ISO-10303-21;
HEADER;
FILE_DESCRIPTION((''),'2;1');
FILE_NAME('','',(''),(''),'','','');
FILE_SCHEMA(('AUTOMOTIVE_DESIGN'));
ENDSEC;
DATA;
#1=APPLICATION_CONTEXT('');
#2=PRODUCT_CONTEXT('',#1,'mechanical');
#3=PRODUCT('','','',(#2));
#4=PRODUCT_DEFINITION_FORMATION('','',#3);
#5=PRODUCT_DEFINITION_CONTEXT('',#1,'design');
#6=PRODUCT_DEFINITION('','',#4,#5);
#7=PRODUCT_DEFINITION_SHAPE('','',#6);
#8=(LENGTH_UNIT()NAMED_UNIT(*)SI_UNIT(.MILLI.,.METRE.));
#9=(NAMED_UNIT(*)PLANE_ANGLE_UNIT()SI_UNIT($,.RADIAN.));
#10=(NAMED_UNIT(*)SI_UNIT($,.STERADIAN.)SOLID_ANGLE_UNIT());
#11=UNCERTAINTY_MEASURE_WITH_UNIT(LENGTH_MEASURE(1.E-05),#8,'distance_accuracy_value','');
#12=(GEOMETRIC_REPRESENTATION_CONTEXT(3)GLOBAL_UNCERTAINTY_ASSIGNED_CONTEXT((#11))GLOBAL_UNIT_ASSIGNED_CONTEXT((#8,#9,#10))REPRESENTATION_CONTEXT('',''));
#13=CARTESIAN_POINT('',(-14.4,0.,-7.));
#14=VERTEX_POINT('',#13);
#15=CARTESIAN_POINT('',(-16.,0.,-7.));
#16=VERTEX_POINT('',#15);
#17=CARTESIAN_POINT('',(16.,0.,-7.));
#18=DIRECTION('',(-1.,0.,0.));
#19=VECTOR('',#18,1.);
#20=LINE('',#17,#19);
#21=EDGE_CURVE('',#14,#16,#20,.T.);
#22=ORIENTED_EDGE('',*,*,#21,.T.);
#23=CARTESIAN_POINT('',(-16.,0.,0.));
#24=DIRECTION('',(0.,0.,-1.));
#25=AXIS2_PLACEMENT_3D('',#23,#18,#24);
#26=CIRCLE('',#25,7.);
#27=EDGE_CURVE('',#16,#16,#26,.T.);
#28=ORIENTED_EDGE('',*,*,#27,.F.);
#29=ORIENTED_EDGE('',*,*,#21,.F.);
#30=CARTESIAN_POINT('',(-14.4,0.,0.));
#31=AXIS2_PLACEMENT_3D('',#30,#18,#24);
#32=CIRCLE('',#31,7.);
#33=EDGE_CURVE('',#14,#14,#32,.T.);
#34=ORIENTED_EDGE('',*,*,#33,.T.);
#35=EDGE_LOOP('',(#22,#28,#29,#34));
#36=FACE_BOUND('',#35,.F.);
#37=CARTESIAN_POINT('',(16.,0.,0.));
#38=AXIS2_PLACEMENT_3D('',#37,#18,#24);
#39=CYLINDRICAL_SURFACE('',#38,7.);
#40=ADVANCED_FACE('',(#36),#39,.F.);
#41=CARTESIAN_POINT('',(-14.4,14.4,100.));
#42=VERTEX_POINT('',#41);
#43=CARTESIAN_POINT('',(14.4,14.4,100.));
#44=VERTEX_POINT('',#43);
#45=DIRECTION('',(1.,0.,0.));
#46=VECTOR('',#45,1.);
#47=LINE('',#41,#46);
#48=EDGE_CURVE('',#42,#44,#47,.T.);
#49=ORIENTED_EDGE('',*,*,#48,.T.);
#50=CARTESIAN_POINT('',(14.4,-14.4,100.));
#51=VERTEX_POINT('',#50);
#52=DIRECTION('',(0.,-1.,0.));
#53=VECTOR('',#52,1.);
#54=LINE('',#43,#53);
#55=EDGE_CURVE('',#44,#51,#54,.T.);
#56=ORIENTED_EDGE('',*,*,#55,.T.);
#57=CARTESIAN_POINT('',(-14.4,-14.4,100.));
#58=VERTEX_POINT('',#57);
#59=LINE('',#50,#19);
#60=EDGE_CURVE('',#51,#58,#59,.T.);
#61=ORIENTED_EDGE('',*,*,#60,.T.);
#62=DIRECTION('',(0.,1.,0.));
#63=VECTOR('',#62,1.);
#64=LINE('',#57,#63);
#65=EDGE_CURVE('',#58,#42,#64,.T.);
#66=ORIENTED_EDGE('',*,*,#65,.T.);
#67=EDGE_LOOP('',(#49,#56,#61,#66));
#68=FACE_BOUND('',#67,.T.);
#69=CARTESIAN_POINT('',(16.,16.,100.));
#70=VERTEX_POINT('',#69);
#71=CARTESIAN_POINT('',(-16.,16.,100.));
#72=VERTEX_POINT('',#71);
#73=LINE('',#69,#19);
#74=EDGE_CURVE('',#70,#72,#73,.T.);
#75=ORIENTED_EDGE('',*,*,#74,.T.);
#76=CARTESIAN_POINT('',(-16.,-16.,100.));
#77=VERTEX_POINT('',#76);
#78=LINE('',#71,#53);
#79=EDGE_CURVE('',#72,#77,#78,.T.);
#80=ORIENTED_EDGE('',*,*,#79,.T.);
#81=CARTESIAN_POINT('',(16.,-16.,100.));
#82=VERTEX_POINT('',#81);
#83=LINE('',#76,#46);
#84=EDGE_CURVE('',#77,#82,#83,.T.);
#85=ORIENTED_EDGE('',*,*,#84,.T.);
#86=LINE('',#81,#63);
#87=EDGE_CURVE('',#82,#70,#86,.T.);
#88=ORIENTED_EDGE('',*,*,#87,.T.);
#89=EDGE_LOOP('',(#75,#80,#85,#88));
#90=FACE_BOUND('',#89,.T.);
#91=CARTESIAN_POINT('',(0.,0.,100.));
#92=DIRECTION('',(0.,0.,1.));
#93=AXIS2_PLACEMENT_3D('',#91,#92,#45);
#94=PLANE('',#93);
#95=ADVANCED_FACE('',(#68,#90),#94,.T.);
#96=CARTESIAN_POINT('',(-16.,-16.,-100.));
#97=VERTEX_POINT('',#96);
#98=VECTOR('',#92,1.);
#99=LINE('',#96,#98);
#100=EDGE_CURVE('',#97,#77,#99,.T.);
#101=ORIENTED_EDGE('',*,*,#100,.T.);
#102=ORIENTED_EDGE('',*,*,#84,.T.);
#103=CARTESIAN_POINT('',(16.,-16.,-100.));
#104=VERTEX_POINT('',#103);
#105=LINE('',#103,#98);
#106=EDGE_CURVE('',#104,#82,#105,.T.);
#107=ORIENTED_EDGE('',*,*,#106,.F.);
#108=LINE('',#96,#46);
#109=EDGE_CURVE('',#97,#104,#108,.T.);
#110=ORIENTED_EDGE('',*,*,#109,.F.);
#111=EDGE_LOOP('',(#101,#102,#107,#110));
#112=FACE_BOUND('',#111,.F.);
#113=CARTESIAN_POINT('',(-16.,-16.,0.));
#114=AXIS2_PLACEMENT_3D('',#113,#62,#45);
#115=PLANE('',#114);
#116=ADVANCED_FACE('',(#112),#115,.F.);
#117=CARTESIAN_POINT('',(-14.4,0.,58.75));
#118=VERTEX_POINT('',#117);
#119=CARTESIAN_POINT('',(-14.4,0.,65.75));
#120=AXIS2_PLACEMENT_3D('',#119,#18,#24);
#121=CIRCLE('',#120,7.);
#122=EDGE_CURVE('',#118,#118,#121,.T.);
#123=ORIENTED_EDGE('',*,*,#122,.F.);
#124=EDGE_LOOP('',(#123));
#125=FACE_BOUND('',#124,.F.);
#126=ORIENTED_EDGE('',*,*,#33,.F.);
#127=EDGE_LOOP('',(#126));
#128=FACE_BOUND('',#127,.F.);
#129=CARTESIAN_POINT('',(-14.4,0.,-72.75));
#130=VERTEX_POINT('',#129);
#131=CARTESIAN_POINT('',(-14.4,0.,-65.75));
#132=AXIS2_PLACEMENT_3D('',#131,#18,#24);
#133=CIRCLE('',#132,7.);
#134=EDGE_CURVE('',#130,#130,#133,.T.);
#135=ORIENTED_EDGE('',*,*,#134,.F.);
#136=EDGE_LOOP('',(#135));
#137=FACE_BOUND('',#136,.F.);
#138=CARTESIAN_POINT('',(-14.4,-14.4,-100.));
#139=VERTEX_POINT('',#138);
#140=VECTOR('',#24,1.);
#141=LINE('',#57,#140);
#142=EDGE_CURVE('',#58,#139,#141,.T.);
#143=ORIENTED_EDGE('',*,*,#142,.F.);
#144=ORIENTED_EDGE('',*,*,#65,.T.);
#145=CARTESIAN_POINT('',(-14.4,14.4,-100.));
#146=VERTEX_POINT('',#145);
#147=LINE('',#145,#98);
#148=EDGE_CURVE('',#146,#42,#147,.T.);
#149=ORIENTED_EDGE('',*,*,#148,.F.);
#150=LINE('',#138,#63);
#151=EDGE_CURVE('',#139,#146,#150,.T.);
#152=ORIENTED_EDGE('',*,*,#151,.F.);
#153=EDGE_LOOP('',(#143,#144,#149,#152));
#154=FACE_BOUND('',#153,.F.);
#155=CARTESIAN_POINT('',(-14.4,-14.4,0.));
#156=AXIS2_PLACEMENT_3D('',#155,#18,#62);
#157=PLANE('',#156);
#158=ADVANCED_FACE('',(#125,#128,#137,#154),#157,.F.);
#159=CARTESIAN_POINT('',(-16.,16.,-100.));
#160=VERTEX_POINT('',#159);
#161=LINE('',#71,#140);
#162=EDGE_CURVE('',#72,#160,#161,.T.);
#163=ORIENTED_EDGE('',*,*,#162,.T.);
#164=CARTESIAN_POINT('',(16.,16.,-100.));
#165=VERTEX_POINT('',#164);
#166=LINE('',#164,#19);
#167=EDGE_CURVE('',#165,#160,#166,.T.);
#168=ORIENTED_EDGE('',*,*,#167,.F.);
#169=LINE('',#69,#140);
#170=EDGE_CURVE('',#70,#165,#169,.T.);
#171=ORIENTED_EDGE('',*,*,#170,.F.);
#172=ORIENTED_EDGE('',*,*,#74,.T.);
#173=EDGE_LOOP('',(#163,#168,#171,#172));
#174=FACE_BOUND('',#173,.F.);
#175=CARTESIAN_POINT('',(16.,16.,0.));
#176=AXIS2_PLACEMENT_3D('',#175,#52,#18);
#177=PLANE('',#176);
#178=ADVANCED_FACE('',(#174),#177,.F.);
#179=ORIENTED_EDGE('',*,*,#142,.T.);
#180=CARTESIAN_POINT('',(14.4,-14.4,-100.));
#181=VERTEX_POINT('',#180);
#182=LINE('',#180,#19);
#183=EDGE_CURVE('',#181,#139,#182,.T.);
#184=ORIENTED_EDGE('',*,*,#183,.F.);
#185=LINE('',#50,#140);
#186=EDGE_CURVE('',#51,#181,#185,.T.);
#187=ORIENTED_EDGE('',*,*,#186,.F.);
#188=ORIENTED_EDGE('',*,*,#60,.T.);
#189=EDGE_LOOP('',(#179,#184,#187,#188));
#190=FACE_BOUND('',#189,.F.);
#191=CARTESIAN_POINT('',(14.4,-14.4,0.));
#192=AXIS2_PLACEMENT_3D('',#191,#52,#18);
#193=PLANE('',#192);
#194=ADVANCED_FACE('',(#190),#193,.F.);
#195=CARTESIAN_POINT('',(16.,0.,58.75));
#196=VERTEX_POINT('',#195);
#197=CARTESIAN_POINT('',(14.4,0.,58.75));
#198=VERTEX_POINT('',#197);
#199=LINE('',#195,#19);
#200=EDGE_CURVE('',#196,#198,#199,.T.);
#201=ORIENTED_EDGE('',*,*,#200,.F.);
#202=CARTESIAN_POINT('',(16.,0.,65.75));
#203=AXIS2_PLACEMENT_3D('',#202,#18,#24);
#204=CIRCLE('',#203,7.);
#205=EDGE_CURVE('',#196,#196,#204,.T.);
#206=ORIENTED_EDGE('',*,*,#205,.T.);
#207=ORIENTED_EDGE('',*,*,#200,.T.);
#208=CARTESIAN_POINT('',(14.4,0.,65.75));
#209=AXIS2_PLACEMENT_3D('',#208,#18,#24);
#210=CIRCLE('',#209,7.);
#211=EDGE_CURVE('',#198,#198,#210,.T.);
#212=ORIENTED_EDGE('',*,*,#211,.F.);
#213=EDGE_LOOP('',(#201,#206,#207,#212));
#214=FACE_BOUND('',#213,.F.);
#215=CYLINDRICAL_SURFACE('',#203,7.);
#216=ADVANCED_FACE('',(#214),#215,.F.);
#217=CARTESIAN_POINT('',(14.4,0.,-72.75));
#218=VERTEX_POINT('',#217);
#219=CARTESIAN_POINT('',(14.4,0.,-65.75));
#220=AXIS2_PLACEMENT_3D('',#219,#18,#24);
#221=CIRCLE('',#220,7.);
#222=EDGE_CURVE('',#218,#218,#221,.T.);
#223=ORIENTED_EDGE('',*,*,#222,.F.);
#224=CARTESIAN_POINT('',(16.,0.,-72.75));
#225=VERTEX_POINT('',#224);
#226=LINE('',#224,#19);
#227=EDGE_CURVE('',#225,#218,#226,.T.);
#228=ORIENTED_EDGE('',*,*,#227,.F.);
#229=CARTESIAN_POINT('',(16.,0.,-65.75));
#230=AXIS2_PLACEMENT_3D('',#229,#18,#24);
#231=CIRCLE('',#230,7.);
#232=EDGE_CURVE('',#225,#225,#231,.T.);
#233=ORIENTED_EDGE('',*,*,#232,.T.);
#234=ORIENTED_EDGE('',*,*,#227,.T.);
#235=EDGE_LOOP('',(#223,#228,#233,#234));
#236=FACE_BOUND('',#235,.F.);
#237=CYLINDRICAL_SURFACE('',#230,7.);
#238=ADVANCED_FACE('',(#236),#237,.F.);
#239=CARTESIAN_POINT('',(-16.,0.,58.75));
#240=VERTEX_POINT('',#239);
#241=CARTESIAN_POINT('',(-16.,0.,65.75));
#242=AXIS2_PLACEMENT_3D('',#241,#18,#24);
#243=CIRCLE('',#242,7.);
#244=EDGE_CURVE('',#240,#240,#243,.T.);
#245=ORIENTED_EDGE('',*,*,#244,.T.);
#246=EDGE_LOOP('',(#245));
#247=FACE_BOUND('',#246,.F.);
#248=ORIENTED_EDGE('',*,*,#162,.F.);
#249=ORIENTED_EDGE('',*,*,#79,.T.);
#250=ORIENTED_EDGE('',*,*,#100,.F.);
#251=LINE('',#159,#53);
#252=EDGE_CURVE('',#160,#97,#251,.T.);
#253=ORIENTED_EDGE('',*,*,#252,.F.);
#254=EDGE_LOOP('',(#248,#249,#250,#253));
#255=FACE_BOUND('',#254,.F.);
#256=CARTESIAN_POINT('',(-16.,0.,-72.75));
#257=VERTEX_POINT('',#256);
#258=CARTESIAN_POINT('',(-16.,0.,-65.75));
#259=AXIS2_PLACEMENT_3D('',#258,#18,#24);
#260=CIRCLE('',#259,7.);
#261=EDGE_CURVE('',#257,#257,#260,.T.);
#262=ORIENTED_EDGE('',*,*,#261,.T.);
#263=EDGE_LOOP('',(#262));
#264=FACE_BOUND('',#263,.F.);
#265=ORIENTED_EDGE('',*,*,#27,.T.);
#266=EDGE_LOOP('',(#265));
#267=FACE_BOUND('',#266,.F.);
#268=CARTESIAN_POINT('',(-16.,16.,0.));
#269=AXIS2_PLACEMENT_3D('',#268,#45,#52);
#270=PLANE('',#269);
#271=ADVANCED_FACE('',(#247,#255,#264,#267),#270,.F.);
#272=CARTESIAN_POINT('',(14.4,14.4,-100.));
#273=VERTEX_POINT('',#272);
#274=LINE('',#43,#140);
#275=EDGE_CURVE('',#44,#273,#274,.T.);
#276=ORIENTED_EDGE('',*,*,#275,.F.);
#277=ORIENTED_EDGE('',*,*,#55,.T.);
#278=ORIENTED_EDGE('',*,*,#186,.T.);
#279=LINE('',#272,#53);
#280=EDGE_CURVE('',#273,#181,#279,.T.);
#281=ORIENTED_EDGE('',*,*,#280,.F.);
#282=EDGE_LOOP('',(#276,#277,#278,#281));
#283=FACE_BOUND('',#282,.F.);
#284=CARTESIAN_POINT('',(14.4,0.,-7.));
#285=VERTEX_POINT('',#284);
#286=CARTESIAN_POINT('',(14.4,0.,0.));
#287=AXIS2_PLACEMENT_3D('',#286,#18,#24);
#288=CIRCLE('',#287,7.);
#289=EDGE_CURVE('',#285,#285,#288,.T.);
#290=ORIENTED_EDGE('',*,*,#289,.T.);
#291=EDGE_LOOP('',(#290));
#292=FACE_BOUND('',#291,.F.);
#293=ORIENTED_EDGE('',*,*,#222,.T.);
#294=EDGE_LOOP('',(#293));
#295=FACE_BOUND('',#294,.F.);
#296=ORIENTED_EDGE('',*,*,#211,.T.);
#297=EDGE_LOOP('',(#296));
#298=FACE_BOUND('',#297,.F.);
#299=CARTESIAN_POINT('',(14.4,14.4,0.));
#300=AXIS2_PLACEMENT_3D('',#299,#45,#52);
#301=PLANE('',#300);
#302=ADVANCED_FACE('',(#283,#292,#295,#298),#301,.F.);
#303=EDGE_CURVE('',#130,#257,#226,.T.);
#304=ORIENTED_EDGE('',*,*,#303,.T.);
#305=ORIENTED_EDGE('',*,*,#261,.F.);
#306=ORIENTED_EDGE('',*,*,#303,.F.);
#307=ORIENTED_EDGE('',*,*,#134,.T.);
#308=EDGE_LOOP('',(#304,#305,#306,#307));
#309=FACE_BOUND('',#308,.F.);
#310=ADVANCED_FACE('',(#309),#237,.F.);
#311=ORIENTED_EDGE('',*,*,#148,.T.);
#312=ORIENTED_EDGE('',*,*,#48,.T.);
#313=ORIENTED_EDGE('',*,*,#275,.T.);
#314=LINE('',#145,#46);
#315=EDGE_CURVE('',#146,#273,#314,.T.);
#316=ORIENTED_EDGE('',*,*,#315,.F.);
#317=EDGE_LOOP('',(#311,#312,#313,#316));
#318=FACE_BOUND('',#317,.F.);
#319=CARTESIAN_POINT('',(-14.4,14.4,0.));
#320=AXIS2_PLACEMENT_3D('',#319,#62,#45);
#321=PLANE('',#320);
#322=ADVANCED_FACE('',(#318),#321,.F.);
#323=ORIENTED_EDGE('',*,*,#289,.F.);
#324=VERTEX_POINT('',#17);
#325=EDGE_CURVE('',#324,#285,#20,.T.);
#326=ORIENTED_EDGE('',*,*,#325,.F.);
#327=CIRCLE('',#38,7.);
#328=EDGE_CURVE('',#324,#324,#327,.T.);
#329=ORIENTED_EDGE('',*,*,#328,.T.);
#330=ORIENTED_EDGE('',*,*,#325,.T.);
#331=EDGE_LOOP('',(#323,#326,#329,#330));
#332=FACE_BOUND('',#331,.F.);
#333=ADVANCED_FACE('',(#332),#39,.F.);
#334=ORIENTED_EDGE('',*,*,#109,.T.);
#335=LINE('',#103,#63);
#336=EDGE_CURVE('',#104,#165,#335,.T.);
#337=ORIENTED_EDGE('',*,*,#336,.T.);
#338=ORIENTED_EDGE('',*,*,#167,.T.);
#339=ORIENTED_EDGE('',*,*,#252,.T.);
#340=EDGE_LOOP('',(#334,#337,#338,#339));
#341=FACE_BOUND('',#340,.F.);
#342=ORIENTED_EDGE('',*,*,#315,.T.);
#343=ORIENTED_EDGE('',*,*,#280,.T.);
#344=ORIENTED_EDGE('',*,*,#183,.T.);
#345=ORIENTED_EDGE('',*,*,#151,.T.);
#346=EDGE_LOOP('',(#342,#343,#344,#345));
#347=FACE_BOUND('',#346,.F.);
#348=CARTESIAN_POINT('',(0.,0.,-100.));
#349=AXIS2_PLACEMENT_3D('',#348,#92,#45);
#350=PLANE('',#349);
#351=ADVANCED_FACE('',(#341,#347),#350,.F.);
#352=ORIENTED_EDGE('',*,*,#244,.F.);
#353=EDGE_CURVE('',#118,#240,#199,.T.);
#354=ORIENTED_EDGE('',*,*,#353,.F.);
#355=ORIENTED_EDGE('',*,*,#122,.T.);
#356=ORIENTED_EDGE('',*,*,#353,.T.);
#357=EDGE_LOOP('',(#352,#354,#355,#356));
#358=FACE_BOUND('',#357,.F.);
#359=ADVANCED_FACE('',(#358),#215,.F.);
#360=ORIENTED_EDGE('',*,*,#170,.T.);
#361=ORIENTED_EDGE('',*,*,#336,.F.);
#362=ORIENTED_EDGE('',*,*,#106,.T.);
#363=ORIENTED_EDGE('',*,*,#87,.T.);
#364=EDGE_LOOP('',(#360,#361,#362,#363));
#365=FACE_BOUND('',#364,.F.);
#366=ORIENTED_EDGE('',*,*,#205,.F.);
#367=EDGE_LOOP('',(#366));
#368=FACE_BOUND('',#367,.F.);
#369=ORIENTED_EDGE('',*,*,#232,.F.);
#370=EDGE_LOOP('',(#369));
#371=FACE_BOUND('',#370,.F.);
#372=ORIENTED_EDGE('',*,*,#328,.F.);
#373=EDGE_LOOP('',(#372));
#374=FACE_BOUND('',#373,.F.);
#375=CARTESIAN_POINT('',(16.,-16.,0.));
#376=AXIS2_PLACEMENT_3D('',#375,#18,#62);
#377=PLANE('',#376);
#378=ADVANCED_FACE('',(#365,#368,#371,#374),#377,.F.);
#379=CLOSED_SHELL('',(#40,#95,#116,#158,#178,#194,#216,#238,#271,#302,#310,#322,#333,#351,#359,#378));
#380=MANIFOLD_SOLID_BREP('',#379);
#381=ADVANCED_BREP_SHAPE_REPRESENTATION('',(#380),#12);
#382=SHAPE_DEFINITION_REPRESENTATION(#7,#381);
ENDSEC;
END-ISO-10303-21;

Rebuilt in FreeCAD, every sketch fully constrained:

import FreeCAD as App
import Part
import Sketcher
Q = App.Units.Quantity


def add_polygon(sketch, points):
    """Adds a closed chain of lines whose ends are joined by coincident constraints."""
    first, n = sketch.GeometryCount, len(points)
    for a, b in zip(points, points[1:] + points[:1]):
        sketch.addGeometry(Part.LineSegment(App.Vector(*a, 0), App.Vector(*b, 0)), False)
    for i in range(n):
        sketch.addConstraint(Sketcher.Constraint("Coincident", first + i, 2, first + (i + 1) % n, 1))

doc = App.newDocument("Part")
params = doc.addObject("Spreadsheet::Sheet", "Params")
for row, (alias, value) in enumerate([
    ("sketch1_width", "32 mm"),
    ("pad1_length", "200 mm"),
    ("sketch2_diameter", "14 mm"),
    ("hole_diameter", "14 mm"),
], start=1):
    params.set(f"A{row}", alias)
    params.set(f"B{row}", "=" + value)
    params.setAlias(f"B{row}", alias)

body = doc.addObject("PartDesign::Body", "Body")

sketch1 = body.newObject("Sketcher::SketchObject", "Sketch")
sketch1.AttachmentSupport = (doc.getObject("XY_Plane"), [""])
sketch1.MapMode = "FlatFace"
add_polygon(sketch1, [(-16, 16), (-16, -16), (16, -16), (16, 16)])
add_polygon(sketch1, [(-14.4, -14.4), (-14.4, 14.4), (14.4, 14.4), (14.4, -14.4)])
sketch1.addConstraint(Sketcher.Constraint("Vertical", 0))
sketch1.addConstraint(Sketcher.Constraint("Horizontal", 1))
sketch1.addConstraint(Sketcher.Constraint("Vertical", 2))
sketch1.addConstraint(Sketcher.Constraint("Horizontal", 3))
sketch1.addConstraint(Sketcher.Constraint("Vertical", 4))
sketch1.addConstraint(Sketcher.Constraint("Horizontal", 5))
sketch1.addConstraint(Sketcher.Constraint("Vertical", 6))
sketch1.addConstraint(Sketcher.Constraint("Horizontal", 7))
sketch1.addConstraint(Sketcher.Constraint("Symmetric", 0, 2, 2, 2, -1, 1))
sketch1.addConstraint(Sketcher.Constraint("Symmetric", 4, 2, 6, 2, -1, 1))
sketch1.addConstraint(Sketcher.Constraint("Equal", 3, 0))
sketch1.addConstraint(Sketcher.Constraint("Equal", 7, 4))
sketch1.addConstraint(Sketcher.Constraint("DistanceX", 1, 1, 1, 2, Q("32 mm")))
sketch1.addConstraint(Sketcher.Constraint("DistanceX", 3, 2, 4, 2, Q("1.6 mm")))
sketch1.setExpression("Constraints[20]", "Params.sketch1_width")
pad1 = body.newObject("PartDesign::Pad", "Pad")
pad1.Profile = sketch1
pad1.setExpression("Length", "Params.pad1_length")
pad1.Midplane = True

sketch2 = body.newObject("Sketcher::SketchObject", "Sketch001")
sketch2.AttachmentSupport = (doc.getObject("YZ_Plane"), [""])
sketch2.MapMode = "FlatFace"
sketch2.AttachmentOffset = App.Placement(App.Vector(0, 0, 16), App.Rotation())
sketch2.addGeometry(Part.Circle(App.Vector(0, 65.75, 0), App.Vector(0, 0, 1), 7), False)
sketch2.addGeometry(Part.Circle(App.Vector(0, 0, 0), App.Vector(0, 0, 1), 7), False)
sketch2.addGeometry(Part.Circle(App.Vector(0, -65.75, 0), App.Vector(0, 0, 1), 7), False)
sketch2.addConstraint(Sketcher.Constraint("Coincident", 1, 3, -1, 1))
sketch2.addConstraint(Sketcher.Constraint("Equal", 0, 1))
sketch2.addConstraint(Sketcher.Constraint("Equal", 1, 2))
sketch2.addConstraint(Sketcher.Constraint("Symmetric", 0, 3, 2, 3, -1, 1))
sketch2.addConstraint(Sketcher.Constraint("PointOnObject", 0, 3, -2))
sketch2.addConstraint(Sketcher.Constraint("Diameter", 0, Q("14 mm")))
sketch2.addConstraint(Sketcher.Constraint("DistanceY", 2, 3, 0, 3, Q("131.5 mm")))
sketch2.setExpression("Constraints[5]", "Params.sketch2_diameter")
doc.recompute()
hole = body.newObject("PartDesign::Hole", "Hole")
hole.Profile = sketch2
hole.ThreadType = "None"
hole.setExpression("Diameter", "Params.hole_diameter")
hole.DepthType = "ThroughAll"

doc.recompute()
